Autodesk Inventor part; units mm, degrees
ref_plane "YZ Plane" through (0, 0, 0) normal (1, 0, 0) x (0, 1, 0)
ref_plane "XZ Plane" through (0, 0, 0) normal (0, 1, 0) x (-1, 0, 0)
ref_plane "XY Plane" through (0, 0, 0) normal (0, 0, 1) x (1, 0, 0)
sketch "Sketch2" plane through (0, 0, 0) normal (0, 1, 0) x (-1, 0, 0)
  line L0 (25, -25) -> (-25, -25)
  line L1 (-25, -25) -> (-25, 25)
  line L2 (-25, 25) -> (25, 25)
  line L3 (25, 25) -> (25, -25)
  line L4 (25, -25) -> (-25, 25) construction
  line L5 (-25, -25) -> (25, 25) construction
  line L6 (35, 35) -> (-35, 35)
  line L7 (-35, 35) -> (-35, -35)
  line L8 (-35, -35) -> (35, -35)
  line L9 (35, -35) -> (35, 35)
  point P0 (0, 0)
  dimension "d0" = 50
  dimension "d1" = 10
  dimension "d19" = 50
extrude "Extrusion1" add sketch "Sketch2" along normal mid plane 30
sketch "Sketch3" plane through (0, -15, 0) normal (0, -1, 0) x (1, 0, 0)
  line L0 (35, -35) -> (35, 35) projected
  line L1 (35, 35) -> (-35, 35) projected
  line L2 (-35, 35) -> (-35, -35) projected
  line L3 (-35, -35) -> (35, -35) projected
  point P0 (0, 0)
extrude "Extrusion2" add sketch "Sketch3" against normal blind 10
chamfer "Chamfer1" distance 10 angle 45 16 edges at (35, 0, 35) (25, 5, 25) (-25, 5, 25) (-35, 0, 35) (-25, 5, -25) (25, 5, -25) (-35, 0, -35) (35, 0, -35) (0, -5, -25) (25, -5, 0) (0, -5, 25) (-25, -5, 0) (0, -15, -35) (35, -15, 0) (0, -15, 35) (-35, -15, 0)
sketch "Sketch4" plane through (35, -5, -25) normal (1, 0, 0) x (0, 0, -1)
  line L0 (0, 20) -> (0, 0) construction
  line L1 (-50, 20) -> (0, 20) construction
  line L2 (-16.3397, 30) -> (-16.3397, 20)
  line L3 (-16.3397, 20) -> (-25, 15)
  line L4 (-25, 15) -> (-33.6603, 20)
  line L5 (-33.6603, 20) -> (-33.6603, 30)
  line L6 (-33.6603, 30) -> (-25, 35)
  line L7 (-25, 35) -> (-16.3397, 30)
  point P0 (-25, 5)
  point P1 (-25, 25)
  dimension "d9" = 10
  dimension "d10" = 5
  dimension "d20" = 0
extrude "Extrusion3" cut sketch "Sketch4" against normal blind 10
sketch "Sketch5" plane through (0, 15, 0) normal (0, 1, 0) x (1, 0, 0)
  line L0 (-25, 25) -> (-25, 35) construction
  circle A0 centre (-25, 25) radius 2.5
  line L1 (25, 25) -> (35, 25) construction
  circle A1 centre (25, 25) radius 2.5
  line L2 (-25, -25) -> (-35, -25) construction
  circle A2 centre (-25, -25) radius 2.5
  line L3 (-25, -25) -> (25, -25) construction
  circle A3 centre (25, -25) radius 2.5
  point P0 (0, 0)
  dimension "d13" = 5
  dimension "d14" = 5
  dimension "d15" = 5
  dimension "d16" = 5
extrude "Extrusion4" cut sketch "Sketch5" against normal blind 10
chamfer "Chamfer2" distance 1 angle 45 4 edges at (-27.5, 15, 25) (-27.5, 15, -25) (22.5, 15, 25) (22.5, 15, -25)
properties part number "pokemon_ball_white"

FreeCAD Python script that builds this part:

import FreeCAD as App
import Part
import Sketcher
from FreeCAD import Vector


def edges_at(feature, points):
    """Names of the edges that pass closest to the given points."""
    edges = feature.Shape.Edges
    near = lambda p: min(range(len(edges)), key=lambda i: edges[i].distToShape(Part.Vertex(*p))[0])
    return sorted({f"Edge{near(p) + 1}" for p in points})


def add_polygon(sketch, points):
    """Adds a closed chain of lines whose ends are joined by coincident constraints."""
    first, n = sketch.GeometryCount, len(points)
    for a, b in zip(points, points[1:] + points[:1]):
        sketch.addGeometry(Part.LineSegment(App.Vector(*a, 0), App.Vector(*b, 0)), False)
    for i in range(n):
        sketch.addConstraint(Sketcher.Constraint("Coincident", first + i, 2, first + (i + 1) % n, 1))

doc = App.newDocument("Part")
body = doc.addObject("PartDesign::Body", "Body")

sketch1 = doc.addObject("Sketcher::SketchObject", "Sketch")
body.addObject(sketch1)
sketch1.AttachmentSupport = (doc.XZ_Plane, [""])
sketch1.MapMode = "FlatFace"
add_polygon(sketch1, [(-35, -35), (-35, 35), (35, 35), (35, -35)])
add_polygon(sketch1, [(-25, 25), (-25, -25), (25, -25), (25, 25)])
sketch1.addConstraint([
    Sketcher.Constraint("Vertical", 0),
    Sketcher.Constraint("Horizontal", 1),
    Sketcher.Constraint("Vertical", 2),
    Sketcher.Constraint("Horizontal", 3),
    Sketcher.Constraint("Vertical", 4),
    Sketcher.Constraint("Horizontal", 5),
    Sketcher.Constraint("Vertical", 6),
    Sketcher.Constraint("Horizontal", 7),
    Sketcher.Constraint("Symmetric", 0, 2, 2, 2, -1, 1),
    Sketcher.Constraint("Symmetric", 4, 2, 6, 2, -1, 1),
    Sketcher.Constraint("Equal", 3, 0),
    Sketcher.Constraint("Equal", 7, 4),
    Sketcher.Constraint("DistanceX", 5, 1, 5, 2, 50.0),
    Sketcher.Constraint("DistanceX", 3, 2, 4, 2, 10.0),
])
pad1 = doc.addObject("PartDesign::Pad", "Pad")
body.addObject(pad1)
pad1.Profile = sketch1
pad1.Length = 30
pad1.Midplane = True

sketch2 = doc.addObject("Sketcher::SketchObject", "Sketch001")
body.addObject(sketch2)
sketch2.AttachmentSupport = (doc.XZ_Plane, [""])
sketch2.MapMode = "FlatFace"
sketch2.AttachmentOffset = App.Placement(Vector(0, 0, 15), App.Rotation())
add_polygon(sketch2, [(-35, -35), (35, -35), (35, 35), (-35, 35)])
sketch2.addConstraint([
    Sketcher.Constraint("Horizontal", 0),
    Sketcher.Constraint("Vertical", 1),
    Sketcher.Constraint("Horizontal", 2),
    Sketcher.Constraint("Vertical", 3),
    Sketcher.Constraint("Symmetric", 0, 2, 2, 2, -1, 1),
    Sketcher.Constraint("Equal", 2, 1),
    Sketcher.Constraint("DistanceX", 0, 1, 0, 2, 70.0),
])
pad2 = doc.addObject("PartDesign::Pad", "Pad001")
body.addObject(pad2)
pad2.Profile = sketch2
pad2.Length = 10
pad2.Reversed = True
doc.recompute()

chamfer = doc.addObject("PartDesign::Chamfer", "Chamfer")
body.addObject(chamfer)
chamfer.Base = (pad2, edges_at(pad2, [
    (35, 0, 35),
    (25, 5, 25),
    (-25, 5, 25),
    (-35, 0, 35),
    (-25, 5, -25),
    (25, 5, -25),
    (-35, 0, -35),
    (35, 0, -35),
    (0, -5, -25),
    (25, -5, 0),
    (0, -5, 25),
    (-25, -5, 0),
    (0, -15, -35),
    (35, -15, 0),
    (0, -15, 35),
    (-35, -15, 0),
]))
chamfer.Size = 10

sketch3 = doc.addObject("Sketcher::SketchObject", "Sketch002")
body.addObject(sketch3)
sketch3.AttachmentSupport = (doc.YZ_Plane, [""])
sketch3.MapMode = "FlatFace"
sketch3.AttachmentOffset = App.Placement(Vector(0, 0, 35), App.Rotation())
add_polygon(sketch3, [(15, -9), (25, -9), (30, 0), (25, 9), (15, 9), (10, 0)])
sketch3.addConstraint([
    Sketcher.Constraint("Horizontal", 0),
    Sketcher.Constraint("Horizontal", 3),
    Sketcher.Constraint("Symmetric", 0, 2, 2, 2, -1),
    Sketcher.Constraint("PointOnObject", 1, 2, -1),
    Sketcher.Constraint("PointOnObject", 4, 2, -1),
    Sketcher.Constraint("Parallel", 1, 4),
    Sketcher.Constraint("Parallel", 2, 5),
    Sketcher.Constraint("DistanceX", 0, 1, 0, 2, 10.0),
    Sketcher.Constraint("Distance", 1, 10.0),
    Sketcher.Constraint("DistanceX", -1, 1, 4, 2, 10.0),
    Sketcher.Constraint("DistanceX", 0, 2, 1, 2, 5.0),
])
pocket1 = doc.addObject("PartDesign::Pocket", "Pocket")
body.addObject(pocket1)
pocket1.Profile = sketch3
pocket1.Length = 10

sketch4 = doc.addObject("Sketcher::SketchObject", "Sketch003")
body.addObject(sketch4)
sketch4.AttachmentSupport = (doc.XZ_Plane, [""])
sketch4.MapMode = "FlatFace"
sketch4.AttachmentOffset = App.Placement(Vector(0, 0, -15), App.Rotation())
sketch4.addGeometry([
    Part.Circle(Vector(-25, -25, 0), Vector(0, 0, 1), 2.5),
    Part.Circle(Vector(25, -25, 0), Vector(0, 0, 1), 2.5),
    Part.Circle(Vector(-25, 25, 0), Vector(0, 0, 1), 2.5),
    Part.Circle(Vector(25, 25, 0), Vector(0, 0, 1), 2.5),
], False)
sketch4.addConstraint([
    Sketcher.Constraint("Equal", 0, 1),
    Sketcher.Constraint("Equal", 1, 2),
    Sketcher.Constraint("Equal", 2, 3),
    Sketcher.Constraint("Symmetric", 1, 3, 2, 3, -1, 1),
    Sketcher.Constraint("Symmetric", 0, 3, 3, 3, -1, 1),
    Sketcher.Constraint("Symmetric", 0, 3, 1, 3, -2),
    Sketcher.Constraint("Diameter", 0, 5.0),
    Sketcher.Constraint("DistanceX", 0, 3, -1, 1, 25.0),
    Sketcher.Constraint("DistanceY", 0, 3, -1, 1, 25.0),
])
pocket2 = doc.addObject("PartDesign::Pocket", "Pocket001")
body.addObject(pocket2)
pocket2.Profile = sketch4
pocket2.Length = 10
pocket2.Reversed = True
doc.recompute()

chamfer2 = doc.addObject("PartDesign::Chamfer", "Chamfer001")
body.addObject(chamfer2)
chamfer2.Base = (pocket2, edges_at(pocket2, [
    (-27.5, 15, 25),
    (-27.5, 15, -25),
    (22.5, 15, 25),
    (22.5, 15, -25),
]))
chamfer2.Size = 1

doc.recompute()
